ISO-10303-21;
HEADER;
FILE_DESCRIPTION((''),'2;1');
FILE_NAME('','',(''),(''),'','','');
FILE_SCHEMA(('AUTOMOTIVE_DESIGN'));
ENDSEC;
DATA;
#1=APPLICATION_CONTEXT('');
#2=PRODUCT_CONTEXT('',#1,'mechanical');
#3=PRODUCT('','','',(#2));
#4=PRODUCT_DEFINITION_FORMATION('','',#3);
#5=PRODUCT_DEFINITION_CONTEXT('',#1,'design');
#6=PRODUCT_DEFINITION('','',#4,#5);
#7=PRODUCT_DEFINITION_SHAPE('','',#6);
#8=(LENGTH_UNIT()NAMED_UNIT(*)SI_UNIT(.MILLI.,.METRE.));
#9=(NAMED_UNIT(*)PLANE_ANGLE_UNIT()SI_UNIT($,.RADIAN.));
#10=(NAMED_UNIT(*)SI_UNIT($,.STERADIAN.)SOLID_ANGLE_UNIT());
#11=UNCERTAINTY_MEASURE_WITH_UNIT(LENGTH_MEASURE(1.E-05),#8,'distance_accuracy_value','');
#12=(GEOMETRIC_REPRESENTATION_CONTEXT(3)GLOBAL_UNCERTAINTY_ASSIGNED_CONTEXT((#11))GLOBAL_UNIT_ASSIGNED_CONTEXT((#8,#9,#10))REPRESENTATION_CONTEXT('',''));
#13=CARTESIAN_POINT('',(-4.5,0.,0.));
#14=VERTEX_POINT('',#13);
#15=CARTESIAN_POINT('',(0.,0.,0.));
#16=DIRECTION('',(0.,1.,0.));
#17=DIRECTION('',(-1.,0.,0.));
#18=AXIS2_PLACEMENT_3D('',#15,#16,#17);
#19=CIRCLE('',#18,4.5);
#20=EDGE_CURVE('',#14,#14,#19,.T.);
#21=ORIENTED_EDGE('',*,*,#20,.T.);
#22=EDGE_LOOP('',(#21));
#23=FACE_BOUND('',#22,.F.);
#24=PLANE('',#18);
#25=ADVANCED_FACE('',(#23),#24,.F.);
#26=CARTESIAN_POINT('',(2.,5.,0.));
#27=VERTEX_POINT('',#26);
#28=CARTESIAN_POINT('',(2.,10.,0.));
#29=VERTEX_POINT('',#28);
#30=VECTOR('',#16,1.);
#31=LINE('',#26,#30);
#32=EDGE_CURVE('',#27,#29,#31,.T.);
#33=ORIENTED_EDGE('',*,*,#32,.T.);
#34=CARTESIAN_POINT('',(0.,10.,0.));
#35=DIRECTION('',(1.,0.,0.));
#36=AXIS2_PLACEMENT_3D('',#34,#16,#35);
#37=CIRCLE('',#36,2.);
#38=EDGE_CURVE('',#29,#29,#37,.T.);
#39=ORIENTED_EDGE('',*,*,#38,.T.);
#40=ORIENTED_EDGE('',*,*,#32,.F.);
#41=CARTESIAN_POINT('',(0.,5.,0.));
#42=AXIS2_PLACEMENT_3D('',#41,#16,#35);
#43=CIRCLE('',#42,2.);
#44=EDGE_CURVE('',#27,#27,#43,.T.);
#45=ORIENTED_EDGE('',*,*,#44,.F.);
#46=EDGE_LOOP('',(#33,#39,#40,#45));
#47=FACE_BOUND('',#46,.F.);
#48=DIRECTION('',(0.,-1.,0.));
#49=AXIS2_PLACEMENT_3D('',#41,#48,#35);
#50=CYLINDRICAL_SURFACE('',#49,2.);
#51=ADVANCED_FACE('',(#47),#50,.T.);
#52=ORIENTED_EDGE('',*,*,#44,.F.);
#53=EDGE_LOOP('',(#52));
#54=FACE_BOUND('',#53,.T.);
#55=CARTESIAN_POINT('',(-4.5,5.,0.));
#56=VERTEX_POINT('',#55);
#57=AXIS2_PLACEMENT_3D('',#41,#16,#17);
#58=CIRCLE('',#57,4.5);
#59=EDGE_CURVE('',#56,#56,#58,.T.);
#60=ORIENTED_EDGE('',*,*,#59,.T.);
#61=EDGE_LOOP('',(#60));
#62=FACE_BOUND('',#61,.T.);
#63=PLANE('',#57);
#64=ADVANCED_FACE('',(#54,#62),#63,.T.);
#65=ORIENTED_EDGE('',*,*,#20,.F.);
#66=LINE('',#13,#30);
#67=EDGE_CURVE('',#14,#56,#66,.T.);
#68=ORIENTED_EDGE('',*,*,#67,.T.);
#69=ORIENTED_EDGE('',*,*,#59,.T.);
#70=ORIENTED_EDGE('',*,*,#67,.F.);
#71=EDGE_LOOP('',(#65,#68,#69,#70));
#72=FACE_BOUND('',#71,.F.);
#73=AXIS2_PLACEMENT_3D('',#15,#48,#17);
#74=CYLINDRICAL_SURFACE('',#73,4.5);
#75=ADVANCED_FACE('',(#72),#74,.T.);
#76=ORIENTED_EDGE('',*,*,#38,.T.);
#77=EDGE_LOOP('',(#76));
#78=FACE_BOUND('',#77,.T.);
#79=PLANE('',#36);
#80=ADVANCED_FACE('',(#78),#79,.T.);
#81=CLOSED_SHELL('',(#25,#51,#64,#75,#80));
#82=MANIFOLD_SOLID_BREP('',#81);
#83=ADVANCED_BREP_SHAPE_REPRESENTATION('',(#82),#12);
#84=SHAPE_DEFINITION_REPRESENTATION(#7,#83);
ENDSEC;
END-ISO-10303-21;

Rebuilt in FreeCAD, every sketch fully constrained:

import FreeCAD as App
import Part
import Sketcher
from FreeCAD import Vector

doc = App.newDocument("Part")
body = doc.addObject("PartDesign::Body", "Body")

# Sketch on XZ plane
sketch1 = doc.addObject("Sketcher::SketchObject", "Sketch")
body.addObject(sketch1)
sketch1.AttachmentSupport = (doc.XZ_Plane, [""])
sketch1.MapMode = "FlatFace"
sketch1.addGeometry(Part.Circle(Vector(0, 0, 0), Vector(0, 0, 1), 4.5), False)
sketch1.addConstraint(Sketcher.Constraint("Coincident", 0, 3, -1, 1))
sketch1.addConstraint(Sketcher.Constraint("Diameter", 0, 9.0))
pad1 = doc.addObject("PartDesign::Pad", "Pad")
body.addObject(pad1)
pad1.Profile = sketch1
pad1.Length = 5
pad1.Reversed = True

# Sketch on XZ plane
sketch2 = doc.addObject("Sketcher::SketchObject", "Sketch001")
body.addObject(sketch2)
sketch2.AttachmentSupport = (doc.XZ_Plane, [""])
sketch2.MapMode = "FlatFace"
sketch2.AttachmentOffset = App.Placement(Vector(0, 0, -5), App.Rotation())
sketch2.addGeometry(Part.Circle(Vector(0, 0, 0), Vector(0, 0, 1), 2), False)
sketch2.addConstraint(Sketcher.Constraint("Coincident", 0, 3, -1, 1))
sketch2.addConstraint(Sketcher.Constraint("Diameter", 0, 4.0))
pad2 = doc.addObject("PartDesign::Pad", "Pad001")
body.addObject(pad2)
pad2.Profile = sketch2
pad2.Length = 5
pad2.Reversed = True

doc.recompute()
